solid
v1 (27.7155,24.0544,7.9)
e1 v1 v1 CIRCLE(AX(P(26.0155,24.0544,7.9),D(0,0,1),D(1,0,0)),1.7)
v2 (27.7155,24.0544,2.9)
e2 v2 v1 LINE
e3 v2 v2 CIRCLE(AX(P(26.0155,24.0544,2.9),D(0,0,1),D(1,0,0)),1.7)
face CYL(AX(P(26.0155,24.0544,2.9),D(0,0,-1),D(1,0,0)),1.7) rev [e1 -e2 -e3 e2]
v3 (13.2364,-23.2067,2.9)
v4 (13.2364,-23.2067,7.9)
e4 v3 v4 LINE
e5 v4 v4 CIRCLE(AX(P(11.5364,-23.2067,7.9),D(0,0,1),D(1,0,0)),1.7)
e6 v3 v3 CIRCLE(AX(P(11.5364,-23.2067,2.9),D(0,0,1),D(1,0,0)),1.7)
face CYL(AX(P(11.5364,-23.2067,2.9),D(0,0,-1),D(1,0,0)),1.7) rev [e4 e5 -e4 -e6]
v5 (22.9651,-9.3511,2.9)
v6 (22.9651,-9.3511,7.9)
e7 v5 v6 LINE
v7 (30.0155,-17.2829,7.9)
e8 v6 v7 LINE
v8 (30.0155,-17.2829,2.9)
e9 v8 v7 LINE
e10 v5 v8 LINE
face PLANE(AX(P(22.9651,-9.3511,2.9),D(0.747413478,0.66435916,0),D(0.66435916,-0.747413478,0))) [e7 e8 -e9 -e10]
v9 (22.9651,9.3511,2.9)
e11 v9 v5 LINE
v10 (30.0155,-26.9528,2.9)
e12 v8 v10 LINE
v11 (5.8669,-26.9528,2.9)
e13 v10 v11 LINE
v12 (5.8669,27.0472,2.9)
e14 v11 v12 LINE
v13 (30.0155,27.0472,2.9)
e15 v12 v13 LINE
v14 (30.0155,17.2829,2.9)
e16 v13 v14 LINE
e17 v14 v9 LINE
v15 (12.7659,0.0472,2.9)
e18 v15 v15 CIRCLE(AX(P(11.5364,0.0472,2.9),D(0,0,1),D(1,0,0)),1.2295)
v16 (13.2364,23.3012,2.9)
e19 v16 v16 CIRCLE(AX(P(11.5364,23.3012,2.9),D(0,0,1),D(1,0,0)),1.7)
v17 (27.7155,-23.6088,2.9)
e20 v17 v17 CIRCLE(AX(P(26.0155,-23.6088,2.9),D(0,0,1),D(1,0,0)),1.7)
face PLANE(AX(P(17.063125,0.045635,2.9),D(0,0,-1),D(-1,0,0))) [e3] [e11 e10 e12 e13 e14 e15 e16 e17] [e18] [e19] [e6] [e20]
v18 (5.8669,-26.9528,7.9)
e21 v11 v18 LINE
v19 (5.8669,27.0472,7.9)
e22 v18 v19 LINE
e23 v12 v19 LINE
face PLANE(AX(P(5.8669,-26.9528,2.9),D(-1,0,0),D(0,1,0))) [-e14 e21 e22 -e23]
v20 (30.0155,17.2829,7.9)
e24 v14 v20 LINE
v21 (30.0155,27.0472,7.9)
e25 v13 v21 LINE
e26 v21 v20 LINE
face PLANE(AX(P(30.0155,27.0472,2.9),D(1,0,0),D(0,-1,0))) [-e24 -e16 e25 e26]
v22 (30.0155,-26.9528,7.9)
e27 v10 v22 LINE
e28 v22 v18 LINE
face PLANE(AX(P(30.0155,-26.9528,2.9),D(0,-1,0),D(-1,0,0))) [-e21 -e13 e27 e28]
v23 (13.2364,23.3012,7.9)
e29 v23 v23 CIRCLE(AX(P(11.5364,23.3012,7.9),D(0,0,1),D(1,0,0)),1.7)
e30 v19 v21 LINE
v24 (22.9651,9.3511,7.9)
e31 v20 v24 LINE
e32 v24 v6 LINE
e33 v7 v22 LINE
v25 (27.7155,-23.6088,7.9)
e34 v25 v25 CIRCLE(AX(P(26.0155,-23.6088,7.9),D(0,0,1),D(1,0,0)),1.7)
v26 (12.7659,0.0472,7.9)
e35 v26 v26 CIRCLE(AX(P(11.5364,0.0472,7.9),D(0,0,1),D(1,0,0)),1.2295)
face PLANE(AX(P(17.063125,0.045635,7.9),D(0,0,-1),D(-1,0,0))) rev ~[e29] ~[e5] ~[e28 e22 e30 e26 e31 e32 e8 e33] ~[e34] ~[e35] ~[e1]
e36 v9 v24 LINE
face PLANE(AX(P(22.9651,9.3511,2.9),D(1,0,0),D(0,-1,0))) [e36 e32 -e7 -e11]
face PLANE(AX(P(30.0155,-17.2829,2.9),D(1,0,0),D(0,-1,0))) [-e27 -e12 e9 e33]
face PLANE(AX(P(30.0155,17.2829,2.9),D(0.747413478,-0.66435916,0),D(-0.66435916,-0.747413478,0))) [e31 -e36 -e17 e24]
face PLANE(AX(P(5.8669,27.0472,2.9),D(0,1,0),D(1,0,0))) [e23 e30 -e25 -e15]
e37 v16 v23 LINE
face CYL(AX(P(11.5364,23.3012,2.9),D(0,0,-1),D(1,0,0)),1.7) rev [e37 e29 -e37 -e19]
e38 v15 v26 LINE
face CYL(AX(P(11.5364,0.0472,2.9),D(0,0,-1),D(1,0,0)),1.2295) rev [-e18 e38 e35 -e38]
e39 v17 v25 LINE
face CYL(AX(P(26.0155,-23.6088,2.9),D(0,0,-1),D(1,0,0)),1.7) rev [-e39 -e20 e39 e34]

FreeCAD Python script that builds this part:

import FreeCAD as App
import Part
import Sketcher

V = App.Vector

doc = App.newDocument("Part")
body = doc.addObject("PartDesign::Body", "Body")

# Sketch on XY plane
sketch1 = body.newObject("Sketcher::SketchObject", "Sketch")
sketch1.AttachmentSupport = (doc.getObject("XY_Plane"), [""])
sketch1.MapMode = "FlatFace"
sketch1.AttachmentOffset = App.Placement(V(0, 0, 2.9), App.Rotation())
sketch1.addGeometry([
    Part.LineSegment(V(5.9, 27, 0), V(5.9, -27, 0)),  # 0
    Part.LineSegment(V(5.9, -27, 0), V(30, -27, 0)),  # 1
    Part.LineSegment(V(30, -27, 0), V(30, -17.3, 0)),  # 2
    Part.LineSegment(V(30, -17.3, 0), V(23, -9.4, 0)),  # 3
    Part.LineSegment(V(23, -9.4, 0), V(23, 9.4, 0)),  # 4
    Part.LineSegment(V(23, 9.4, 0), V(30, 17.3, 0)),  # 5
    Part.LineSegment(V(30, 17.3, 0), V(30, 27, 0)),  # 6
    Part.LineSegment(V(30, 27, 0), V(5.9, 27, 0)),  # 7
    Part.Circle(V(11.5, -23.2, 0), V(0, 0, 1), 1.7),  # 8
    Part.Circle(V(26, -23.6, 0), V(0, 0, 1), 1.7),  # 9
    Part.Circle(V(11.5, 0, 0), V(0, 0, 1), 1.2),  # 10
    Part.Circle(V(11.5, 23.3, 0), V(0, 0, 1), 1.7),  # 11
    Part.Circle(V(26, 24.1, 0), V(0, 0, 1), 1.7),  # 12
], False)
sketch1.addConstraint([
    Sketcher.Constraint("Coincident", 0, 2, 1, 1),
    Sketcher.Constraint("Coincident", 1, 2, 2, 1),
    Sketcher.Constraint("Coincident", 2, 2, 3, 1),
    Sketcher.Constraint("Coincident", 3, 2, 4, 1),
    Sketcher.Constraint("Coincident", 4, 2, 5, 1),
    Sketcher.Constraint("Coincident", 5, 2, 6, 1),
    Sketcher.Constraint("Coincident", 6, 2, 7, 1),
    Sketcher.Constraint("Coincident", 7, 2, 0, 1),
    Sketcher.Constraint("Vertical", 0),
    Sketcher.Constraint("Horizontal", 1),
    Sketcher.Constraint("Vertical", 2),
    Sketcher.Constraint("Vertical", 4),
    Sketcher.Constraint("Vertical", 6),
    Sketcher.Constraint("Horizontal", 7),
    Sketcher.Constraint("Equal", 8, 9),
    Sketcher.Constraint("Equal", 9, 11),
    Sketcher.Constraint("Equal", 11, 12),
    Sketcher.Constraint("Symmetric", 2, 2, 5, 2, -1),
    Sketcher.Constraint("Vertical", 8, 3, 10, 3),
    Sketcher.Constraint("Vertical", 10, 3, 11, 3),
    Sketcher.Constraint("Vertical", 9, 3, 12, 3),
    Sketcher.Constraint("Equal", 3, 5),
    Sketcher.Constraint("Diameter", 8, 3.4),
    Sketcher.Constraint("DistanceY", 0, 2, 0, 1, 54.0),
    Sketcher.Constraint("Diameter", 10, 2.459),
    Sketcher.Constraint("DistanceY", 0, 2, 10, 3, 27.0),
    Sketcher.Constraint("DistanceX", 9, 3, 1, 2, 4.0),
    Sketcher.Constraint("DistanceY", 2, 1, 2, 2, 9.67),
    Sketcher.Constraint("DistanceY", 9, 3, 11, 3, 46.91),
    Sketcher.Constraint("DistanceY", 4, 2, 11, 3, 13.95),
    Sketcher.Constraint("DistanceX", 1, 1, 1, 2, 24.1486),
    Sketcher.Constraint("DistanceY", 4, 1, 4, 2, 18.7022),
    Sketcher.Constraint("DistanceY", 6, 1, 6, 2, 9.7643),
    Sketcher.Constraint("DistanceX", -1, 1, 0, 2, 5.867),
    Sketcher.Constraint("DistanceX", -1, 1, 3, 2, 22.965),
    Sketcher.Constraint("DistanceX", 8, 3, 9, 3, 14.479),
    Sketcher.Constraint("DistanceY", 9, 3, 8, 3, 0.402),
    Sketcher.Constraint("DistanceY", 8, 3, 12, 3, 47.261),
])
pad1 = body.newObject("PartDesign::Pad", "Pad")
pad1.Profile = sketch1
pad1.Length = 5

doc.recompute()
